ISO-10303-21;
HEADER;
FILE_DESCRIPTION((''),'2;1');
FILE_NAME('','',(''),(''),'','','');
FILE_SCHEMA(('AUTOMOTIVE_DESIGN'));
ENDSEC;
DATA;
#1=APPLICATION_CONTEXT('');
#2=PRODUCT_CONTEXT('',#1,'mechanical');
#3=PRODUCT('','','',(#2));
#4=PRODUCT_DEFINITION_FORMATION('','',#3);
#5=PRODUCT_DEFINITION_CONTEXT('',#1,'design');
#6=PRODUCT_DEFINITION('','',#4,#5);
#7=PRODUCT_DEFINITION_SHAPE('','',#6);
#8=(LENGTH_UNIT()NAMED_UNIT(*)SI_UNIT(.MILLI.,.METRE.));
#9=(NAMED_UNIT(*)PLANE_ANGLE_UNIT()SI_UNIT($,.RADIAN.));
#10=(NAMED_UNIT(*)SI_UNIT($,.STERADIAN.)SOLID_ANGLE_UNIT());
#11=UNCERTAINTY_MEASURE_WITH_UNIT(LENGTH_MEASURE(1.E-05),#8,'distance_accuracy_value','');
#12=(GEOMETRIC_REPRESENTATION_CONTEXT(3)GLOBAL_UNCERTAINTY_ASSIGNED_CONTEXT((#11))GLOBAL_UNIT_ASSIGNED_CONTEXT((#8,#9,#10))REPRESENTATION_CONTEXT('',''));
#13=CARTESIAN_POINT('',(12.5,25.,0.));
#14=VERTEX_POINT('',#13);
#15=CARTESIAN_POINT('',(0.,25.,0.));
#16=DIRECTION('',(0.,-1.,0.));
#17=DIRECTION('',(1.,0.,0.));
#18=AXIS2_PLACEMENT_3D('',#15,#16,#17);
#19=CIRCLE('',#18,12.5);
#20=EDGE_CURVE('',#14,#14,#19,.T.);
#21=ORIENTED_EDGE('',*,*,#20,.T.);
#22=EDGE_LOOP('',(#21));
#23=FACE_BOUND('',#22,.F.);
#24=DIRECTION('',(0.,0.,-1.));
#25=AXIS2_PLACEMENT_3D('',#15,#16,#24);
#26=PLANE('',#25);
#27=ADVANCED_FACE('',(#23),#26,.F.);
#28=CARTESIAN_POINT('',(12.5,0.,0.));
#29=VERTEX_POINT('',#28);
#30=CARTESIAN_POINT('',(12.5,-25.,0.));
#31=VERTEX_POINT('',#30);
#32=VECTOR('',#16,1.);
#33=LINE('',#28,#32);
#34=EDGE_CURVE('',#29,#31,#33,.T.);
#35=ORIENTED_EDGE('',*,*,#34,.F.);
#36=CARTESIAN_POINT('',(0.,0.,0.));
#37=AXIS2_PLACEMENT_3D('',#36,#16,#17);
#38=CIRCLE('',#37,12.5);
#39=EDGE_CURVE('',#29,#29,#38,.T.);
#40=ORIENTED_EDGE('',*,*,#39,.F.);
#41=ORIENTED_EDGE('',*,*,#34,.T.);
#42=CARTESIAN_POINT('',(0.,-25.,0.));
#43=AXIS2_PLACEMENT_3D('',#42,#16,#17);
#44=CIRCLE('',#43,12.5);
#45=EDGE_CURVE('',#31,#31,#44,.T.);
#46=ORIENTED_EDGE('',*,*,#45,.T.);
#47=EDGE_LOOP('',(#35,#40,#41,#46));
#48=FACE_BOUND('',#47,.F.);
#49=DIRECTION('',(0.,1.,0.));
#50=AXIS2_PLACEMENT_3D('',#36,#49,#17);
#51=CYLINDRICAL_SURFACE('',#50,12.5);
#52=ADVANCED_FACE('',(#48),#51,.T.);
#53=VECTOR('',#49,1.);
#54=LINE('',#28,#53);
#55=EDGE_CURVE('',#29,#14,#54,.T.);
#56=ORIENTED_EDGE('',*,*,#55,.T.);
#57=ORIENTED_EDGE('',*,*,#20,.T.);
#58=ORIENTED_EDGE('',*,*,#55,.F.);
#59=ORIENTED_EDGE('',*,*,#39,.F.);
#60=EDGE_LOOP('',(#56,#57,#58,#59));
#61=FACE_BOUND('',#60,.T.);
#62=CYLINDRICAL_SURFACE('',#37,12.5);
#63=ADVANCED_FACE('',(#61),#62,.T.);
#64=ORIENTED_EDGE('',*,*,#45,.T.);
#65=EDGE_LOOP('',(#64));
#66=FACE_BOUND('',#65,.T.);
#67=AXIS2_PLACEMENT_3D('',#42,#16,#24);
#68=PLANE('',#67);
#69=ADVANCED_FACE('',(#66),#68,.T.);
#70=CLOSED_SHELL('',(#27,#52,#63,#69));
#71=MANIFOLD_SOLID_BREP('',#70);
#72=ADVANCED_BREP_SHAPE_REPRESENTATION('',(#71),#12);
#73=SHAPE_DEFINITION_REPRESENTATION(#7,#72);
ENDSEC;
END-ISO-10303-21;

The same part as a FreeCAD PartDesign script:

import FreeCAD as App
import Part
import Sketcher
from FreeCAD import Vector
Q = App.Units.Quantity

doc = App.newDocument("Part")
body = doc.addObject("PartDesign::Body", "Body")

sketch1 = body.newObject("Sketcher::SketchObject", "Sketch")
sketch1.AttachmentSupport = (doc.getObject("XZ_Plane"), [""])
sketch1.MapMode = "FlatFace"
sketch1.addGeometry(Part.Circle(Vector(0, 0, 0), Vector(0, 0, 1), 12), False)
sketch1.addConstraint([
    Sketcher.Constraint("Coincident", 0, 3, -1, 1),
    Sketcher.Constraint("Diameter", 0, Q("25 mm")),
])
pad1 = body.newObject("PartDesign::Pad", "Pad")
pad1.Profile = sketch1
pad1.Length = 50
pad1.Midplane = True

doc.recompute()
